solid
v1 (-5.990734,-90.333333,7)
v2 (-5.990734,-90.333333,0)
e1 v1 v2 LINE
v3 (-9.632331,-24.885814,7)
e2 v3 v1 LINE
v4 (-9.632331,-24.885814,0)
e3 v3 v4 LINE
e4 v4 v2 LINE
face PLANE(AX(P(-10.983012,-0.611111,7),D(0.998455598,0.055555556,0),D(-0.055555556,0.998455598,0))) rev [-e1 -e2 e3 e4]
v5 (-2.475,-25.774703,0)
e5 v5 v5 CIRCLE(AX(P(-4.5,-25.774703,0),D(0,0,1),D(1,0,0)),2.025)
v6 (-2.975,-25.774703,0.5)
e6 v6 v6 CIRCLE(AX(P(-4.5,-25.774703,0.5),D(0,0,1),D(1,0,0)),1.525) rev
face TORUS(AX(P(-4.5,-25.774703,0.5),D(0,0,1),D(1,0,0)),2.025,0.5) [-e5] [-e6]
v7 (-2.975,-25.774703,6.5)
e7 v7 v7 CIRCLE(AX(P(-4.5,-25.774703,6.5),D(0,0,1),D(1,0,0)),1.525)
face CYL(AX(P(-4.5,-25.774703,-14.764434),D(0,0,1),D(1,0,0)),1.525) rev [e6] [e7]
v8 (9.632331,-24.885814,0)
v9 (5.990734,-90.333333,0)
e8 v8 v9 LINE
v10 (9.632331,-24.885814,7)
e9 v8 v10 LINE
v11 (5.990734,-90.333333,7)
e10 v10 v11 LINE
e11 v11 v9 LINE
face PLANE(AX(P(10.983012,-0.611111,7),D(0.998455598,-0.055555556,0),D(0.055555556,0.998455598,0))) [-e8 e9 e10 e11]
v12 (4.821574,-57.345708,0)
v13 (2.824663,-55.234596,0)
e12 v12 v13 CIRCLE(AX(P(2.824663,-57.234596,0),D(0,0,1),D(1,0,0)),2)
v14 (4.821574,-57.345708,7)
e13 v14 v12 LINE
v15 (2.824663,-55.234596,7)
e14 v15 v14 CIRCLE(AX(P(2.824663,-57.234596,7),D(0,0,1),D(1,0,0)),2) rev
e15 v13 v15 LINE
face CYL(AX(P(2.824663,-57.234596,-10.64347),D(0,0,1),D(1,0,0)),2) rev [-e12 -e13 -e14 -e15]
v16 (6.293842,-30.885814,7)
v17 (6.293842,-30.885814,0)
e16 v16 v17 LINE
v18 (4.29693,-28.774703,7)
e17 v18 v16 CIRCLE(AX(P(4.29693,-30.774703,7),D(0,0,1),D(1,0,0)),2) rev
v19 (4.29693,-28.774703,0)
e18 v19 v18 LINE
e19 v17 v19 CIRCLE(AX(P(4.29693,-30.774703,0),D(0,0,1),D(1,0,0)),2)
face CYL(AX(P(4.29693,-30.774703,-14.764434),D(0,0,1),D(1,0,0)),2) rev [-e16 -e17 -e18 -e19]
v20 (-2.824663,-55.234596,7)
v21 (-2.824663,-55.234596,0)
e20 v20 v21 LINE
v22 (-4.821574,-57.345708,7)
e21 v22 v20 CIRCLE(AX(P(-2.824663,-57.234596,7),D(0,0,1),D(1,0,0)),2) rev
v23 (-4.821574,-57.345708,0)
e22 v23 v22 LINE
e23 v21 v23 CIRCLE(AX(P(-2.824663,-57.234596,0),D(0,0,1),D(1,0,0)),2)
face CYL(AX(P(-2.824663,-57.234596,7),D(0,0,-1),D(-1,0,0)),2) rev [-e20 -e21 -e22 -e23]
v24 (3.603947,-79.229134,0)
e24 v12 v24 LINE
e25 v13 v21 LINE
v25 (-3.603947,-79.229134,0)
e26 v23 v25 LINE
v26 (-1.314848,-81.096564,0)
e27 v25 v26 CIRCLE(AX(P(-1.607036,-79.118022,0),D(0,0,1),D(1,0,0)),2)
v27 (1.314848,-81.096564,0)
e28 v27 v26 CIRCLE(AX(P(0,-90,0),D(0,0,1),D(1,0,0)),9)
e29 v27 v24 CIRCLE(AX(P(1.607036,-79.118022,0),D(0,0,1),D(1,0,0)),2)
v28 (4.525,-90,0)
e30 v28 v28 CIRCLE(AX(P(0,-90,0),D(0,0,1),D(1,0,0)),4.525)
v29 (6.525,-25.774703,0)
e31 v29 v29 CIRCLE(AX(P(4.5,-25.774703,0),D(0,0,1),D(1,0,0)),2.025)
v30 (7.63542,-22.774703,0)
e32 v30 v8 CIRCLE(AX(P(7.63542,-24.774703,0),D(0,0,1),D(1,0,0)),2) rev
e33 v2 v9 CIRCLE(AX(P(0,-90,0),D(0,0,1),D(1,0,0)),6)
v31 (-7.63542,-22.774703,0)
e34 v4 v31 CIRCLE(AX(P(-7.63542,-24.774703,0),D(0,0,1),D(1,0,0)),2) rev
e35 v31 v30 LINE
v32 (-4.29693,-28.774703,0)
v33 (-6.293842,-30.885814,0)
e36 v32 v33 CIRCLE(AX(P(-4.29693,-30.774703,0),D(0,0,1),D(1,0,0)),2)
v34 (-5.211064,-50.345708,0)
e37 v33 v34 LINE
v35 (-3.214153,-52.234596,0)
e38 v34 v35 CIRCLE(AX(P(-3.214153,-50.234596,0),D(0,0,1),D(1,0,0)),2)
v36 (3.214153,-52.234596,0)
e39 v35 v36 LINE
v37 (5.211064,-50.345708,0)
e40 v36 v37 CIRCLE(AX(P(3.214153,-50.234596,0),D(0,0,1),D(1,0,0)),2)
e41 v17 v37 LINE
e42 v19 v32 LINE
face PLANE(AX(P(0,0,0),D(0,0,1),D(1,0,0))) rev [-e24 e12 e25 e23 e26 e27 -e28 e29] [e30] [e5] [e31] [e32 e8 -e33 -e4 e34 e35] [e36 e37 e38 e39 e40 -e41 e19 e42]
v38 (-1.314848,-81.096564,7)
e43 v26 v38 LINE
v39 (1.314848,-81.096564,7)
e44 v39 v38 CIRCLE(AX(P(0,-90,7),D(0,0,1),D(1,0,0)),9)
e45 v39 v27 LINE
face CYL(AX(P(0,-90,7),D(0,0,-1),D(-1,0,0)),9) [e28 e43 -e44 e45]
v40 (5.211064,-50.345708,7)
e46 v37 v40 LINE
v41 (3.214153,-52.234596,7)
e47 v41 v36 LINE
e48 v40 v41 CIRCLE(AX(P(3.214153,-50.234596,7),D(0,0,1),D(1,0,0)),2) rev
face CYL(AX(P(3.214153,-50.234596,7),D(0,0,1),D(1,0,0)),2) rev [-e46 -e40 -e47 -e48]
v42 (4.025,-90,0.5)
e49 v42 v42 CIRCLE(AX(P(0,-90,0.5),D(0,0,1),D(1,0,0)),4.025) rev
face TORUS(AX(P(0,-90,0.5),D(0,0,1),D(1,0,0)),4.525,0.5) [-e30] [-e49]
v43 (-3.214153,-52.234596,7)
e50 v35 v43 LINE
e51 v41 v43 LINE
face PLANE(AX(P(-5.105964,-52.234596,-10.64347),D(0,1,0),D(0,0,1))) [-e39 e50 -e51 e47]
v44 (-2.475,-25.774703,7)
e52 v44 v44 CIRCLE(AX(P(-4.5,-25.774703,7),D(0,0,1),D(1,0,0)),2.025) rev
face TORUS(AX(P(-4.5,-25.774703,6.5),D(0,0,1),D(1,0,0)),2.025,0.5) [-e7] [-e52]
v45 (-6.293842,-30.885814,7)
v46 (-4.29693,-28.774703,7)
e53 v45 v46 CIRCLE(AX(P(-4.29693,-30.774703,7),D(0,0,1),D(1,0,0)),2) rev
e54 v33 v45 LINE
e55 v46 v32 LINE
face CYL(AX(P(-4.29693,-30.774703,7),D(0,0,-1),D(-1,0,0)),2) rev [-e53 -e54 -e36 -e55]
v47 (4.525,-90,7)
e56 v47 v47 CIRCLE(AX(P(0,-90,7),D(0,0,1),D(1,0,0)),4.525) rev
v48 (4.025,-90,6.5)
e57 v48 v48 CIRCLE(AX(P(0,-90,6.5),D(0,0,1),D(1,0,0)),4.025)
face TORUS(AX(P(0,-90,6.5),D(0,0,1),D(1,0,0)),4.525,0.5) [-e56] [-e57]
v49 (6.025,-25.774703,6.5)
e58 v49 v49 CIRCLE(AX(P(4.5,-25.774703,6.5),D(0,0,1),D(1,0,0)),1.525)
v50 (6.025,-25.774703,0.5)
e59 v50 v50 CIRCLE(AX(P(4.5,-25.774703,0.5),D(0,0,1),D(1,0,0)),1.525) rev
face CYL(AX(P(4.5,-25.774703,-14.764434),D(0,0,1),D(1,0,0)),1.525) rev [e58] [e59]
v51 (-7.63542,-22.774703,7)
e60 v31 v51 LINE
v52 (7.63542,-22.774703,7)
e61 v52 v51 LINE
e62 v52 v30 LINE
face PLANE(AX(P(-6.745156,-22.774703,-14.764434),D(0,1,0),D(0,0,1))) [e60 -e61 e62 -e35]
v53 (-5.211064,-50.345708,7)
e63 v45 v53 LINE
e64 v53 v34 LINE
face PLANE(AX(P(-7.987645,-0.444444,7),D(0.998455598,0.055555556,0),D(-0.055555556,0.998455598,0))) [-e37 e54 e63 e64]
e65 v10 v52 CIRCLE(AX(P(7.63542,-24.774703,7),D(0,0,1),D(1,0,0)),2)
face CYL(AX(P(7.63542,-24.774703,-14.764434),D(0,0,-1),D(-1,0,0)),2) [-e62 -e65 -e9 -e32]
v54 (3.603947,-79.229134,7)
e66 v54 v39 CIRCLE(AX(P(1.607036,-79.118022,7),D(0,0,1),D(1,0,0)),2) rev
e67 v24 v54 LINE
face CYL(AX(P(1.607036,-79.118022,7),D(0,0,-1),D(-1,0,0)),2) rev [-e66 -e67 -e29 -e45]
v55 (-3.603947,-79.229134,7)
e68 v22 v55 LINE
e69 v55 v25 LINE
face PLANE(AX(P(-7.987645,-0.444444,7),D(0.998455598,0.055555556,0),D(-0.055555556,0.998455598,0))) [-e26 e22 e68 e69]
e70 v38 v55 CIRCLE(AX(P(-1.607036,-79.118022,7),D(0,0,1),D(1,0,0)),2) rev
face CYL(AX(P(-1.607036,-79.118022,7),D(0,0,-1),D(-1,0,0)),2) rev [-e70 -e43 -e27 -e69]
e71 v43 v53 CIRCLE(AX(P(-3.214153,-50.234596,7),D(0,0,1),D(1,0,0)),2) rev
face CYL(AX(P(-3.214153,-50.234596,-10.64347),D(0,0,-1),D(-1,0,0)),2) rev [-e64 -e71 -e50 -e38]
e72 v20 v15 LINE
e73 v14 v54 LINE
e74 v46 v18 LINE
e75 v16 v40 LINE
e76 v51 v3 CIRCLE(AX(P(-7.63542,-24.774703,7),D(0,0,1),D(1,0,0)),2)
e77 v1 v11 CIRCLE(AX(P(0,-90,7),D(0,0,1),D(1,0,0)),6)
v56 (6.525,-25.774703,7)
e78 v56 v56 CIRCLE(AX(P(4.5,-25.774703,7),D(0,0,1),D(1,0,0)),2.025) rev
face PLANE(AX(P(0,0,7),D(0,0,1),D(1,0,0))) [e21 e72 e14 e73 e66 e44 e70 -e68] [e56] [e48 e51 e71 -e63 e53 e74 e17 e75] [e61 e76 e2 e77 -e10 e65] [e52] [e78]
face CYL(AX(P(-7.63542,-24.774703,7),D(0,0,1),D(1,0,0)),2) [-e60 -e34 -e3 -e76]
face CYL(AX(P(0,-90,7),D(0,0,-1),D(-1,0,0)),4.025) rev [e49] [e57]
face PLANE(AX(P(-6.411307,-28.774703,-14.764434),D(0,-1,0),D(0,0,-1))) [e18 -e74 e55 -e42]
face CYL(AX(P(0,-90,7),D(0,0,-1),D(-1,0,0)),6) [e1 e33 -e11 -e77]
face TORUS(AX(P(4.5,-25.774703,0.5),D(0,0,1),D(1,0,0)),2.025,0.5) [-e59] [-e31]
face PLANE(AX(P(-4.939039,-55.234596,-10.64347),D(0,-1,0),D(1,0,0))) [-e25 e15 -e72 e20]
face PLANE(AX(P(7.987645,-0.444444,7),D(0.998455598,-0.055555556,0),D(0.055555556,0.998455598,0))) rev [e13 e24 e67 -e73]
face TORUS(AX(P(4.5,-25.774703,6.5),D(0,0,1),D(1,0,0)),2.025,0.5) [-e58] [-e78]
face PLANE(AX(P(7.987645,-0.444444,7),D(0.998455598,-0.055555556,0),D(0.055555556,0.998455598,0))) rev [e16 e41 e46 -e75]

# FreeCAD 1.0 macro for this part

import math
import FreeCAD as App
import Part
import Sketcher

V = App.Vector


def edges_at(feature, points):
    """Names of the edges that pass closest to the given points."""
    edges = feature.Shape.Edges
    near = lambda p: min(range(len(edges)), key=lambda i: edges[i].distToShape(Part.Vertex(*p))[0])
    return sorted({f"Edge{near(p) + 1}" for p in points})


def add_polygon(sketch, points):
    """Adds a closed chain of lines whose ends are joined by coincident constraints."""
    first, n = sketch.GeometryCount, len(points)
    for a, b in zip(points, points[1:] + points[:1]):
        sketch.addGeometry(Part.LineSegment(App.Vector(*a, 0), App.Vector(*b, 0)), False)
    for i in range(n):
        sketch.addConstraint(Sketcher.Constraint("Coincident", first + i, 2, first + (i + 1) % n, 1))

doc = App.newDocument("Part")
body = doc.addObject("PartDesign::Body", "Body")

# Sketch on XY plane
sketch1 = doc.addObject("Sketcher::SketchObject", "Sketch")
body.addObject(sketch1)
sketch1.AttachmentSupport = (doc.XY_Plane, [""])
sketch1.MapMode = "FlatFace"
sketch1.addGeometry(Part.LineSegment(V(6, -90.3, 0), V(11, -0.6, 0)), False)
sketch1.addGeometry(Part.ArcOfCircle(Part.Circle(V(0, 0, 0), V(0, 0, 1), 11), math.radians(-3), math.radians(183)), False)
sketch1.addGeometry(Part.LineSegment(V(-11, -0.6, 0), V(-6, -90.3, 0)), False)
sketch1.addGeometry(Part.ArcOfCircle(Part.Circle(V(0, -90, 0), V(0, 0, 1), 6), math.radians(-177), math.radians(-3)), False)
sketch1.addGeometry(Part.ArcOfCircle(Part.Circle(V(0, -90, 0), V(0, 0, 1), 9), math.radians(67), math.radians(113)), False)
sketch1.addGeometry(Part.LineSegment(V(-3.5, -81.7, 0), V(-7.4, -10.7, 0)), False)
sketch1.addGeometry(Part.ArcOfCircle(Part.Circle(V(0, 0, 0), V(0, 0, 1), 13), math.radians(-125), math.radians(-55)), False)
sketch1.addGeometry(Part.LineSegment(V(7.4, -10.7, 0), V(3.5, -81.7, 0)), False)
sketch1.addGeometry(Part.Circle(V(-2.8, 4.8, 0), V(0, 0, 1), 1), False)
sketch1.addGeometry(Part.Circle(V(-2.8, -4.8, 0), V(0, 0, 1), 1), False)
sketch1.addGeometry(Part.Circle(V(0, 0, 0), V(0, 0, 1), 3.5), False)
sketch1.addGeometry(Part.Circle(V(5.5, 0, 0), V(0, 0, 1), 1), False)
sketch1.addGeometry(Part.Circle(V(0, -90, 0), V(0, 0, 1), 4), False)
sketch1.addConstraint(Sketcher.Constraint("Tangent", 0, 2, 1, 1))
sketch1.addConstraint(Sketcher.Constraint("Tangent", 1, 2, 2, 1))
sketch1.addConstraint(Sketcher.Constraint("Tangent", 2, 2, 3, 1))
sketch1.addConstraint(Sketcher.Constraint("Tangent", 3, 2, 0, 1))
sketch1.addConstraint(Sketcher.Constraint("Coincident", 4, 2, 5, 1))
sketch1.addConstraint(Sketcher.Constraint("Coincident", 5, 2, 6, 1))
sketch1.addConstraint(Sketcher.Constraint("Coincident", 6, 2, 7, 1))
sketch1.addConstraint(Sketcher.Constraint("Coincident", 7, 2, 4, 1))
sketch1.addConstraint(Sketcher.Constraint("Coincident", 1, 3, -1, 1))
sketch1.addConstraint(Sketcher.Constraint("Coincident", 6, 3, -1, 1))
sketch1.addConstraint(Sketcher.Constraint("Coincident", 10, 3, -1, 1))
sketch1.addConstraint(Sketcher.Constraint("Coincident", 4, 3, 3, 3))
sketch1.addConstraint(Sketcher.Constraint("Coincident", 12, 3, 3, 3))
sketch1.addConstraint(Sketcher.Constraint("Equal", 8, 9))
sketch1.addConstraint(Sketcher.Constraint("Equal", 9, 11))
sketch1.addConstraint(Sketcher.Constraint("Symmetric", 4, 2, 7, 2, -2))
sketch1.addConstraint(Sketcher.Constraint("Symmetric", 8, 3, 9, 3, -1))
sketch1.addConstraint(Sketcher.Constraint("PointOnObject", 11, 3, -1))
sketch1.addConstraint(Sketcher.Constraint("Parallel", 2, 5))
sketch1.addConstraint(Sketcher.Constraint("Parallel", 0, 7))
sketch1.addConstraint(Sketcher.Constraint("Diameter", 10, 7.0))
sketch1.addConstraint(Sketcher.Constraint("Radius", 1, 11.0))
sketch1.addConstraint(Sketcher.Constraint("Radius", 3, 6.0))
sketch1.addConstraint(Sketcher.Constraint("Radius", 4, 9.0))
sketch1.addConstraint(Sketcher.Constraint("Radius", 6, 13.0))
sketch1.addConstraint(Sketcher.Constraint("Diameter", 8, 2.02))
sketch1.addConstraint(Sketcher.Constraint("Diameter", 12, 8.05))
sketch1.addConstraint(Sketcher.Constraint("DistanceY", 3, 3, -1, 1, 90.0))
sketch1.addConstraint(Sketcher.Constraint("DistanceX", -1, 1, 11, 3, 5.5))
sketch1.addConstraint(Sketcher.Constraint("DistanceX", 8, 3, -1, 1, 2.75))
sketch1.addConstraint(Sketcher.Constraint("Distance", 5, 71.128772))
sketch1.addConstraint(Sketcher.Constraint("DistanceY", -1, 1, 8, 3, 4.76314))
pad1 = doc.addObject("PartDesign::Pad", "Pad")
body.addObject(pad1)
pad1.Profile = sketch1
pad1.Length = 7

# Sketch on XY plane
sketch2 = doc.addObject("Sketcher::SketchObject", "Sketch001")
body.addObject(sketch2)
sketch2.AttachmentSupport = (doc.XY_Plane, [""])
sketch2.MapMode = "FlatFace"
sketch2.AttachmentOffset = App.Placement(V(0, 0, 7), App.Rotation())
add_polygon(sketch2, [(6.7, -22.8), (-6.7, -22.8), (-6.4, -28.8), (6.4, -28.8)])  # lines 0-3
sketch2.addGeometry(Part.Circle(V(4.5, -25.8, 0), V(0, 0, 1), 1.5), False)  # 4
sketch2.addGeometry(Part.Circle(V(-4.5, -25.8, 0), V(0, 0, 1), 1.5), False)  # 5
sketch2.addConstraint(Sketcher.Constraint("Horizontal", 0))
sketch2.addConstraint(Sketcher.Constraint("Horizontal", 2))
sketch2.addConstraint(Sketcher.Constraint("Equal", 4, 5))
sketch2.addConstraint(Sketcher.Constraint("Symmetric", 4, 3, 5, 3, -2))
sketch2.addConstraint(Sketcher.Constraint("Equal", 1, 3))
sketch2.addConstraint(Sketcher.Constraint("Diameter", 4, 3.05))
sketch2.addConstraint(Sketcher.Constraint("DistanceX", 5, 3, 4, 3, 9.0))
sketch2.addConstraint(Sketcher.Constraint("DistanceY", 5, 3, 0, 2, 3.0))
sketch2.addConstraint(Sketcher.Constraint("DistanceY", 1, 2, 5, 3, 3.0))
sketch2.addConstraint(Sketcher.Constraint("DistanceX", 0, 2, 0, 1, 13.490312))
sketch2.addConstraint(Sketcher.Constraint("Distance", 1, 6.009281))
sketch2.addConstraint(Sketcher.Constraint("DistanceY", 4, 3, -1, 1, 25.774703))
sketch2.addConstraint(Sketcher.Constraint("DistanceX", 0, 2, -1, 1, 6.745156))
pad2 = doc.addObject("PartDesign::Pad", "Pad001")
body.addObject(pad2)
pad2.Profile = sketch2
pad2.Length = 7
pad2.Reversed = True

# Sketch on XY plane
sketch3 = doc.addObject("Sketcher::SketchObject", "Sketch002")
body.addObject(sketch3)
sketch3.AttachmentSupport = (doc.XY_Plane, [""])
sketch3.MapMode = "FlatFace"
sketch3.AttachmentOffset = App.Placement(V(0, 0, 7), App.Rotation())
add_polygon(sketch3, [(-12, 14), (-12, -23), (12, -23), (12, 14)])  # lines 0-3
sketch3.addConstraint(Sketcher.Constraint("Vertical", 0))
sketch3.addConstraint(Sketcher.Constraint("Horizontal", 1))
sketch3.addConstraint(Sketcher.Constraint("Vertical", 2))
sketch3.addConstraint(Sketcher.Constraint("Horizontal", 3))
sketch3.addConstraint(Sketcher.Constraint("DistanceY", 0, 2, 0, 1, 36.57689))
sketch3.addConstraint(Sketcher.Constraint("DistanceX", 1, 1, 1, 2, 24.553172))
sketch3.addConstraint(Sketcher.Constraint("DistanceX", 0, 2, -1, 1, 12.112631))
sketch3.addConstraint(Sketcher.Constraint("DistanceY", 0, 2, -1, 1, 22.774703))
pocket1 = doc.addObject("PartDesign::Pocket", "Pocket")
body.addObject(pocket1)
pocket1.Profile = sketch3
pocket1.Length = 29

# Sketch on XY plane
sketch4 = doc.addObject("Sketcher::SketchObject", "Sketch003")
body.addObject(sketch4)
sketch4.AttachmentSupport = (doc.XY_Plane, [""])
sketch4.MapMode = "FlatFace"
sketch4.AttachmentOffset = App.Placement(V(0, 0, 7), App.Rotation())
add_polygon(sketch4, [(5.1, -52.2), (-5.1, -52.2), (-4.9, -55.2), (4.9, -55.2)])  # lines 0-3
sketch4.addConstraint(Sketcher.Constraint("Horizontal", 0))
sketch4.addConstraint(Sketcher.Constraint("Horizontal", 2))
sketch4.addConstraint(Sketcher.Constraint("Equal", 1, 3))
sketch4.addConstraint(Sketcher.Constraint("DistanceY", 1, 2, 0, 2, 3.0))
sketch4.addConstraint(Sketcher.Constraint("DistanceX", 2, 1, 2, 2, 9.878078))
sketch4.addConstraint(Sketcher.Constraint("Distance", 1, 3.00464))
sketch4.addConstraint(Sketcher.Constraint("DistanceX", 1, 2, -1, 1, 4.939039))
sketch4.addConstraint(Sketcher.Constraint("DistanceY", 0, 2, -1, 1, 52.234596))
pad3 = doc.addObject("PartDesign::Pad", "Pad002")
body.addObject(pad3)
pad3.Profile = sketch4
pad3.Length = 7
pad3.Reversed = True
doc.recompute()

fillet = doc.addObject("PartDesign::Fillet", "Fillet")
body.addObject(fillet)
fillet.Base = (pad3, edges_at(pad3, [
    (-4.939, -55.235, 3.5),
    (-5.106, -52.235, 3.5),
    (5.106, -52.235, 3.5),
    (4.939, -55.235, 3.5),
    (-3.467, -81.694, 3.5),
    (3.467, -81.694, 3.5),
    (6.411, -28.775, 3.5),
    (-6.411, -28.775, 3.5),
    (-9.75, -22.775, 3.5),
    (9.75, -22.775, 3.5),
]))
fillet.Radius = 2
doc.recompute()

fillet2 = doc.addObject("PartDesign::Fillet", "Fillet001")
body.addObject(fillet2)
fillet2.Base = (fillet, edges_at(fillet, [
    (-4.025, -90, 0),
    (-6.025, -25.775, 0),
    (-6.025, -25.775, 7),
    (2.975, -25.775, 0),
    (2.975, -25.775, 7),
    (-4.025, -90, 7),
]))
fillet2.Radius = 0.5

doc.recompute()
